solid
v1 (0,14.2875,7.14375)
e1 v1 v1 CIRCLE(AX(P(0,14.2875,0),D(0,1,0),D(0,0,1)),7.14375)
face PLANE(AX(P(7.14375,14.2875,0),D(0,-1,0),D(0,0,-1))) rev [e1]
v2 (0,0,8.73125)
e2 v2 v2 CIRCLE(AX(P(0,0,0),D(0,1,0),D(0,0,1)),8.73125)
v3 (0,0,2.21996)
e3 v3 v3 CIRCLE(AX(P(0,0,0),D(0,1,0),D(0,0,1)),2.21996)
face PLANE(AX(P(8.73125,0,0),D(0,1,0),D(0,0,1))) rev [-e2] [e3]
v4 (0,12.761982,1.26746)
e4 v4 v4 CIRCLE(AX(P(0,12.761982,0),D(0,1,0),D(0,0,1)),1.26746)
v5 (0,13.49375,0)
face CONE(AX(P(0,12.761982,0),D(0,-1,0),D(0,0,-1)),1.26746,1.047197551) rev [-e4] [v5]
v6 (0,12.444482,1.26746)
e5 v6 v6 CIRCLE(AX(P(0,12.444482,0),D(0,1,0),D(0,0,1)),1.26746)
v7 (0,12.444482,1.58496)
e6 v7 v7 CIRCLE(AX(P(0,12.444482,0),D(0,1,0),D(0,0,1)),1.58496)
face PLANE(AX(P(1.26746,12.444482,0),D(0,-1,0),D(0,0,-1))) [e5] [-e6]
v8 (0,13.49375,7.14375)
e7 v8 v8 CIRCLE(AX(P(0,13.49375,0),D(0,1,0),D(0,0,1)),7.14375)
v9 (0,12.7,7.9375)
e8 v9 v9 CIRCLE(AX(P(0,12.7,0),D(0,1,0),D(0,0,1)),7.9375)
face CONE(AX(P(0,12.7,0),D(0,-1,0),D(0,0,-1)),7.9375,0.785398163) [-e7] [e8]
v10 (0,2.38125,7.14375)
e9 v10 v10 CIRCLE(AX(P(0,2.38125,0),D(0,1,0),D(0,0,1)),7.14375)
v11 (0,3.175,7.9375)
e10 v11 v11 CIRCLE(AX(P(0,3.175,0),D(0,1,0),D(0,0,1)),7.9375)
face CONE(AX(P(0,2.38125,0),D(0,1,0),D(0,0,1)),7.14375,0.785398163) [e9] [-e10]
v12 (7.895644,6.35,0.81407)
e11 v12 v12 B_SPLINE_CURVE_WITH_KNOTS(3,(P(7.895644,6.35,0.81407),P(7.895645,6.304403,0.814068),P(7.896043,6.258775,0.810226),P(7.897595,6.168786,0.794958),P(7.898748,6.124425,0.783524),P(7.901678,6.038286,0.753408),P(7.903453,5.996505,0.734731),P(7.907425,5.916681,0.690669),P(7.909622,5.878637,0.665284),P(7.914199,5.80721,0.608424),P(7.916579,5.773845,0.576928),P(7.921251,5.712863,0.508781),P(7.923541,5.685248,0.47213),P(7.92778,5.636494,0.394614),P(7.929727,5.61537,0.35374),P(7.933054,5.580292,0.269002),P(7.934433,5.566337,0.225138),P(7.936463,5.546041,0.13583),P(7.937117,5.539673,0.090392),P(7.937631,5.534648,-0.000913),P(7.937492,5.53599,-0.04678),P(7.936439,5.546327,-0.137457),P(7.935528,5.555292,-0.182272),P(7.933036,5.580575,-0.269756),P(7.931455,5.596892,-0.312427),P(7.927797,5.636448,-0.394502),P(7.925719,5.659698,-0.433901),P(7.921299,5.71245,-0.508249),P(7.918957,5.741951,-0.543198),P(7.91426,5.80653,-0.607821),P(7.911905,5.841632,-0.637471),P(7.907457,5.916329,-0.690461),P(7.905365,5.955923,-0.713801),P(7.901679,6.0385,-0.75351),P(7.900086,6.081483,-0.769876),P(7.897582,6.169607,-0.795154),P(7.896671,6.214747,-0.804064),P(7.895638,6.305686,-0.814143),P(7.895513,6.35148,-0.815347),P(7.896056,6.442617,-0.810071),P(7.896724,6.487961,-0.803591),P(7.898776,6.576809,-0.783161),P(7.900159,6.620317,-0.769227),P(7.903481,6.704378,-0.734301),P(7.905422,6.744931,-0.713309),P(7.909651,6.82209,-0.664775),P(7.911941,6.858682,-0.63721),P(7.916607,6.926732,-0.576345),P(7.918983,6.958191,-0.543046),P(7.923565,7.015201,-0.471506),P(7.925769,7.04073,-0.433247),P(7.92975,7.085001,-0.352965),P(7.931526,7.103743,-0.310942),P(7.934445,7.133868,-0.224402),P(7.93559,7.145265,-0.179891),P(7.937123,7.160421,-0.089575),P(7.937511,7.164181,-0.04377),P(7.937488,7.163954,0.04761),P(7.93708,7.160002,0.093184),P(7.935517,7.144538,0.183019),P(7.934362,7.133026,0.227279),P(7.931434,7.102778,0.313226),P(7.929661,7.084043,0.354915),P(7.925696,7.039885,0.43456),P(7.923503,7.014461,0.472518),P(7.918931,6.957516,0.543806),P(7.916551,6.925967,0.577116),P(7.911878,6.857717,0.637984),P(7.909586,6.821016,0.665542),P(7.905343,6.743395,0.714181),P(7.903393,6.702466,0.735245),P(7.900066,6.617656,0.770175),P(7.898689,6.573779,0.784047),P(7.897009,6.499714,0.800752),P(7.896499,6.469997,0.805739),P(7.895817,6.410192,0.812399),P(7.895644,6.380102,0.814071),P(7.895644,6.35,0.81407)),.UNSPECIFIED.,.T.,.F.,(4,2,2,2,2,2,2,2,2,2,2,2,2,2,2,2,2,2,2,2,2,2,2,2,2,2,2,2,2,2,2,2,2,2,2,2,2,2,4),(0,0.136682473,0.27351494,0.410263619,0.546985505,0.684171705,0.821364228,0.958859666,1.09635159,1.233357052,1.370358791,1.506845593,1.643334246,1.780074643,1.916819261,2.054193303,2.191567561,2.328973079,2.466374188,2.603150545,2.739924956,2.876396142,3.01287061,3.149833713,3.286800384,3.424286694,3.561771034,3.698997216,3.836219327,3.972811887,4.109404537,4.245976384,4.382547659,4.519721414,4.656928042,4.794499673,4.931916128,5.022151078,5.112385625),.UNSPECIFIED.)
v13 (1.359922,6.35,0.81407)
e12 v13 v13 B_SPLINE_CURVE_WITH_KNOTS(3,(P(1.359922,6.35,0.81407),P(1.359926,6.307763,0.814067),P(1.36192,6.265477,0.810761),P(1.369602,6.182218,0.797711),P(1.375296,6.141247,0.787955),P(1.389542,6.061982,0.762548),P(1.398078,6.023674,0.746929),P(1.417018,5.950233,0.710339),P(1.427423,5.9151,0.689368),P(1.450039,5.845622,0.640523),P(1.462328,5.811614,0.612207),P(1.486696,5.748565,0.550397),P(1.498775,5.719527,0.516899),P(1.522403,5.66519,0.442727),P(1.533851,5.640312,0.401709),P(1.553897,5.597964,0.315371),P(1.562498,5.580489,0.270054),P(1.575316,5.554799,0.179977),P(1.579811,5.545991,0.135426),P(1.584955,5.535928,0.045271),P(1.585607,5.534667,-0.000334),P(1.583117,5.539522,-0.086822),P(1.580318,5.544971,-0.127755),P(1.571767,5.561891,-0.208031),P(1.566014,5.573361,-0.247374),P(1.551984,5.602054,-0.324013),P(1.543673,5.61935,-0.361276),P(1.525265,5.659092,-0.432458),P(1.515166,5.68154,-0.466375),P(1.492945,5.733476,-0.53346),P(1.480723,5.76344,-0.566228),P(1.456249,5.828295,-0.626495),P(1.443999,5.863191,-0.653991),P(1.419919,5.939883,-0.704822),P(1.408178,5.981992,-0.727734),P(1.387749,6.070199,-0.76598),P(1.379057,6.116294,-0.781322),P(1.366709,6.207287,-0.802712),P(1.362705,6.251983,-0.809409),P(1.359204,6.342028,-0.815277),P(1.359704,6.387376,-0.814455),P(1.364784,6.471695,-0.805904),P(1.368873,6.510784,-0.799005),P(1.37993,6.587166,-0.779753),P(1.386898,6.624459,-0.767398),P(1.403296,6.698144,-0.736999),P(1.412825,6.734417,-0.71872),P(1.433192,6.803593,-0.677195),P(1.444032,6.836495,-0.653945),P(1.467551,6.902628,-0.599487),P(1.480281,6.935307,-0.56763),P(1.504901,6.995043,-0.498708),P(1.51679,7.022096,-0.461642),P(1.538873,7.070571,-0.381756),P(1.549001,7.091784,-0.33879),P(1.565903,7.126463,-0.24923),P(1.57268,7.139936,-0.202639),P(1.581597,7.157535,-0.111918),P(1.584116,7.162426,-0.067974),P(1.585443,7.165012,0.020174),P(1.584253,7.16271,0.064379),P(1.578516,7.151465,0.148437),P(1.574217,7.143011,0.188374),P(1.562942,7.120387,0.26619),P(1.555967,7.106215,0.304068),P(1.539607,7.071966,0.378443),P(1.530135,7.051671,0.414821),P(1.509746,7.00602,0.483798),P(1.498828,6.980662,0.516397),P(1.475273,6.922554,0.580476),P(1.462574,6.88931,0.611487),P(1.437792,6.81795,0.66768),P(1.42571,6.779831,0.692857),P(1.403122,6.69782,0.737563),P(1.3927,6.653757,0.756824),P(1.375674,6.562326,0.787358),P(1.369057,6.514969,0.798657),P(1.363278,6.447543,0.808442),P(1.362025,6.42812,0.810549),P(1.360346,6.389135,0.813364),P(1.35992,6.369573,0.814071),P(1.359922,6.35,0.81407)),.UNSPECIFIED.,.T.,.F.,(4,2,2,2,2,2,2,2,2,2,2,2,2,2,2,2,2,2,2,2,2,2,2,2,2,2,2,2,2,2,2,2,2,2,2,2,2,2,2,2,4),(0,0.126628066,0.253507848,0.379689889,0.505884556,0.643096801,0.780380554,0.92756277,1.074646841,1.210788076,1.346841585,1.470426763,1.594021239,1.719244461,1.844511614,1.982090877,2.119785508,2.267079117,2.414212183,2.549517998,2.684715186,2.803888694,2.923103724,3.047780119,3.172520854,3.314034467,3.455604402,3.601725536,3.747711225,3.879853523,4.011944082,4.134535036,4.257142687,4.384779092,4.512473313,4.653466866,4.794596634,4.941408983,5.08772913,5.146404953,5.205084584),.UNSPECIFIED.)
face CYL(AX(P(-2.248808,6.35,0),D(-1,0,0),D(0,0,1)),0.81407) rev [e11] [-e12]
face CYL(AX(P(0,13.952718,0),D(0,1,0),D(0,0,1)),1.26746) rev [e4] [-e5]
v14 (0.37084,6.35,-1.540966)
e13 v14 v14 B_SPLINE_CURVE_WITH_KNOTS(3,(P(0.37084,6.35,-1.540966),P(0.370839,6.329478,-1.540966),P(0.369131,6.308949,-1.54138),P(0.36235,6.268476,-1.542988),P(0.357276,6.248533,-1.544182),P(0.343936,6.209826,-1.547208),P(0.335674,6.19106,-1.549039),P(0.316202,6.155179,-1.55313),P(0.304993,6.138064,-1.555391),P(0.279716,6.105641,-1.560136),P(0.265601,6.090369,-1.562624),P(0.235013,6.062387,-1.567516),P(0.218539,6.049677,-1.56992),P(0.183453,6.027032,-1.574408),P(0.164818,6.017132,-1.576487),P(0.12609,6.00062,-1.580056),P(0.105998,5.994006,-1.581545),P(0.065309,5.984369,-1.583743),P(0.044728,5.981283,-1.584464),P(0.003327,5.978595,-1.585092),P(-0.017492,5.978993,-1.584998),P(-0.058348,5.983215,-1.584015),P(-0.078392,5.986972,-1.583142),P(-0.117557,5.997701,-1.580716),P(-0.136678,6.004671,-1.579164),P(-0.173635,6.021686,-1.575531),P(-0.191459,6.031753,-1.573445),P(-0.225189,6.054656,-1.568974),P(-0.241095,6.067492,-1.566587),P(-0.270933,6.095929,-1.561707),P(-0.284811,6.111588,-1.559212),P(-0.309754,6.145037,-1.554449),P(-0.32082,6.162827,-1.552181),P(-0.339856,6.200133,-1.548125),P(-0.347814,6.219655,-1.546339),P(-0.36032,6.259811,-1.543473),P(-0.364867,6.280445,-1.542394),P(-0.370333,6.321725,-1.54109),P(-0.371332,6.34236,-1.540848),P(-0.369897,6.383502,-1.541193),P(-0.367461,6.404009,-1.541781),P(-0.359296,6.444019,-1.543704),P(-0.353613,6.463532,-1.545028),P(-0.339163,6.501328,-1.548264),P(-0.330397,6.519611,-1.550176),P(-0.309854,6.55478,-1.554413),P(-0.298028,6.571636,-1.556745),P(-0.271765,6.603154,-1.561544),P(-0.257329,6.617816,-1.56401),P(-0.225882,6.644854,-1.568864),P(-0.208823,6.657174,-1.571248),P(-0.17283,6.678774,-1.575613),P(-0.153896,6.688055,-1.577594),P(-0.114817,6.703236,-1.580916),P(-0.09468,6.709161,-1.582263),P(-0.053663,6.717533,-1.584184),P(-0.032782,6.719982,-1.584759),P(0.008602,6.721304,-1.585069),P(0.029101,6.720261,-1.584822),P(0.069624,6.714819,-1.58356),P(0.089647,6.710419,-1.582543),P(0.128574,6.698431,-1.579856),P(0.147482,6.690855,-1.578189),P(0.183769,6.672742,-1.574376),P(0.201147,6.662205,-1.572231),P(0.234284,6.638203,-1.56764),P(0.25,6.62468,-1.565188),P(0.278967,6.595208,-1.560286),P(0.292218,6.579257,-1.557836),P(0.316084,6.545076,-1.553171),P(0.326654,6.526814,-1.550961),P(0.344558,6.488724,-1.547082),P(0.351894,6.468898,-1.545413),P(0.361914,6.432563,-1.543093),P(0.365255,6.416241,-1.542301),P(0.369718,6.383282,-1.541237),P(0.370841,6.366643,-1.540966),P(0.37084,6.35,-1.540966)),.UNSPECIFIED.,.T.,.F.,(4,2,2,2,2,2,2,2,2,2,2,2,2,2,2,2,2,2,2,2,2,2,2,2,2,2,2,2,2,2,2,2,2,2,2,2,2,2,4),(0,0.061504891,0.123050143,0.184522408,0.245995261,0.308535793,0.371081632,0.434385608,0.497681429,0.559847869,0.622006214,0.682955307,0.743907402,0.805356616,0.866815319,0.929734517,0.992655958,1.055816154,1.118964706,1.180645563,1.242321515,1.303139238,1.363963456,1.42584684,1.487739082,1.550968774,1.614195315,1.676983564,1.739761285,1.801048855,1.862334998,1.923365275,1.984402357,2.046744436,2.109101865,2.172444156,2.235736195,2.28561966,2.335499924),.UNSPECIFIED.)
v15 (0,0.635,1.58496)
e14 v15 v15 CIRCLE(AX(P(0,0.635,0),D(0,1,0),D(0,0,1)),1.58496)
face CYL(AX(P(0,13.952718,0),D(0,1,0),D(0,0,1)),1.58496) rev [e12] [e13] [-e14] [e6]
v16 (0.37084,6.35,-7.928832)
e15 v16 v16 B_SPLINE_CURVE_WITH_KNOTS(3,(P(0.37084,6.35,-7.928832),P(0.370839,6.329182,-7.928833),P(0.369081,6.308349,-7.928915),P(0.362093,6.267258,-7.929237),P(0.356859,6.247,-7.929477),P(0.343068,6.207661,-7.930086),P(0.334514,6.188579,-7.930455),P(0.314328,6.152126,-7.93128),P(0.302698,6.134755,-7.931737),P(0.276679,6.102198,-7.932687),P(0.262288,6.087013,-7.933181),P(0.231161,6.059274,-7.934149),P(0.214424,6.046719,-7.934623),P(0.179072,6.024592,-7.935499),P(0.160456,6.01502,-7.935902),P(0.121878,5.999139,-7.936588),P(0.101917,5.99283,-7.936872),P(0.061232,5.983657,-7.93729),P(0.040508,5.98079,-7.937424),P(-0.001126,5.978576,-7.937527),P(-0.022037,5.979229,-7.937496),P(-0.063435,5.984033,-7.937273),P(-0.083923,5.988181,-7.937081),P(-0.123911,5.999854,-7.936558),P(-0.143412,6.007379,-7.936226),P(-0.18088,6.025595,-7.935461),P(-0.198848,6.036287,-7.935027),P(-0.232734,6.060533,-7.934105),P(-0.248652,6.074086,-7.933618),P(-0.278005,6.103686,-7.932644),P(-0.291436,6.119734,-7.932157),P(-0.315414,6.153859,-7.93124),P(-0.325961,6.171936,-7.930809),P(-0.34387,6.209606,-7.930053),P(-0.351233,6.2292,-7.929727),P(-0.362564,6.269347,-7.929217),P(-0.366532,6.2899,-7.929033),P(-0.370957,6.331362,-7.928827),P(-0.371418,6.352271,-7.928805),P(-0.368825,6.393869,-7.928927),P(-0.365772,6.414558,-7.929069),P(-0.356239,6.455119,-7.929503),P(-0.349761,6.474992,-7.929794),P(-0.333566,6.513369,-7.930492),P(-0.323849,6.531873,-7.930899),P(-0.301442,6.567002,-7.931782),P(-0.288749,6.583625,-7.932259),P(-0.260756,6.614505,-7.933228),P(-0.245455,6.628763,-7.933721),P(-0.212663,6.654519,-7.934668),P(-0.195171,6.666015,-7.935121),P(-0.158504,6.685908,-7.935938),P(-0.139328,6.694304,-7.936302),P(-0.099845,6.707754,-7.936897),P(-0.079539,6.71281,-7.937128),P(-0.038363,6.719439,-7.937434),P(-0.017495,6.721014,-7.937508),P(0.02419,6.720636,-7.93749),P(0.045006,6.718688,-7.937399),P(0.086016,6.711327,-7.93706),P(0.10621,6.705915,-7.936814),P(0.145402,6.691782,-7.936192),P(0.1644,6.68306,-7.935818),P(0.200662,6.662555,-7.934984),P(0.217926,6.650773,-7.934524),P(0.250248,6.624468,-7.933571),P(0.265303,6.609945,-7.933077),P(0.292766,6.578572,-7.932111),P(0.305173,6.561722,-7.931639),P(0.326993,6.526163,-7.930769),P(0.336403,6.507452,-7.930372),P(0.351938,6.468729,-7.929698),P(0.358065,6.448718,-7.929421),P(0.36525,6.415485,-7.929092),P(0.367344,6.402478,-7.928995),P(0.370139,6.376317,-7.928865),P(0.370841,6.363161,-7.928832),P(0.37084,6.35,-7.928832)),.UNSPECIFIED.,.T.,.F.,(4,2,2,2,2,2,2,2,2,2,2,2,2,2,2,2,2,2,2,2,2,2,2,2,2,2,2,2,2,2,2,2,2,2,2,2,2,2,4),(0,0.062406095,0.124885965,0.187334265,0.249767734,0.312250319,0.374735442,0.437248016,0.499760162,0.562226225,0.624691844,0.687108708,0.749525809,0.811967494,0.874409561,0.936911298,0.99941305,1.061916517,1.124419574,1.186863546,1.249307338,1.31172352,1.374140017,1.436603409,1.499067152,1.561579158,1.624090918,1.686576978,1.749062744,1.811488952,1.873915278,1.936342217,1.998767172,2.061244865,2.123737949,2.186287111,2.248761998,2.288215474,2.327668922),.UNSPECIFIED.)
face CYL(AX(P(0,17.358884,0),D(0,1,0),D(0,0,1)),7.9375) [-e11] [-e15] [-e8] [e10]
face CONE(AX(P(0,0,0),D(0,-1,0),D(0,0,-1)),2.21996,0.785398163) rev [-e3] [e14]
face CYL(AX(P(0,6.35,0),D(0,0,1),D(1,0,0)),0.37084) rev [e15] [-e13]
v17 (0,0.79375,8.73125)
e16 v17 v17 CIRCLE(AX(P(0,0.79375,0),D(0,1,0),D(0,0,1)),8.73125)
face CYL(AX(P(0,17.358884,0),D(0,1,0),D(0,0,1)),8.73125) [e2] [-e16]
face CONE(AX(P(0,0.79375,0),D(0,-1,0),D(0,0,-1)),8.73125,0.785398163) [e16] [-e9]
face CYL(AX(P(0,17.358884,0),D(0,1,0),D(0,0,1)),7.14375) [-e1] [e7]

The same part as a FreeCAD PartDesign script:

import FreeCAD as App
import Part
import Sketcher
from FreeCAD import Vector
Q = App.Units.Quantity

doc = App.newDocument("Part")
body = doc.addObject("PartDesign::Body", "Body")

sketch1 = body.newObject("Sketcher::SketchObject", "Sketch")
sketch1.AttachmentSupport = (doc.getObject("XY_Plane"), [""])
sketch1.MapMode = "FlatFace"
sketch1.addGeometry([
    Part.LineSegment(Vector(7.1, 13.5, 0), Vector(7.1, 14.3, 0)),
    Part.LineSegment(Vector(7.1, 14.3, 0), Vector(0, 14.3, 0)),
    Part.LineSegment(Vector(0, 14.3, 0), Vector(0, 0, 0)),
    Part.LineSegment(Vector(0, 0, 0), Vector(8.7, 0, 0)),
    Part.LineSegment(Vector(8.7, 0, 0), Vector(8.7, 0.8, 0)),
    Part.LineSegment(Vector(8.7, 0.8, 0), Vector(7.1, 2.4, 0)),
    Part.LineSegment(Vector(7.1, 2.4, 0), Vector(7.9, 3.2, 0)),
    Part.LineSegment(Vector(7.9, 3.2, 0), Vector(7.9, 12.7, 0)),
    Part.LineSegment(Vector(7.9, 12.7, 0), Vector(7.1, 13.5, 0)),
], False)
sketch1.addConstraint([
    Sketcher.Constraint("Coincident", 0, 2, 1, 1),
    Sketcher.Constraint("Coincident", 1, 2, 2, 1),
    Sketcher.Constraint("Coincident", 2, 2, 3, 1),
    Sketcher.Constraint("Coincident", 3, 2, 4, 1),
    Sketcher.Constraint("Coincident", 4, 2, 5, 1),
    Sketcher.Constraint("Coincident", 5, 2, 6, 1),
    Sketcher.Constraint("Coincident", 6, 2, 7, 1),
    Sketcher.Constraint("Coincident", 7, 2, 8, 1),
    Sketcher.Constraint("Coincident", 8, 2, 0, 1),
    Sketcher.Constraint("Vertical", 0),
    Sketcher.Constraint("Horizontal", 1),
    Sketcher.Constraint("Vertical", 2),
    Sketcher.Constraint("Horizontal", 3),
    Sketcher.Constraint("Vertical", 4),
    Sketcher.Constraint("Vertical", 7),
    Sketcher.Constraint("Coincident", 2, 2, -1, 1),
    Sketcher.Constraint("Perpendicular", 5, 6),
    Sketcher.Constraint("Perpendicular", 6, 8),
    Sketcher.Constraint("Vertical", 0, 2, 5, 2),
    Sketcher.Constraint("Equal", 0, 4),
    Sketcher.Constraint("Equal", 6, 8),
    Sketcher.Constraint("DistanceY", -1, 1, 7, 2, Q("0.5 in")),
    Sketcher.Constraint("DistanceX", 1, 2, 1, 1, Q("0.28125 in")),
    Sketcher.Constraint("DistanceX", 3, 1, 3, 2, Q("0.34375 in")),
    Sketcher.Constraint("DistanceY", 0, 1, 0, 2, Q("0.03125 in")),
    Sketcher.Constraint("DistanceY", 2, 2, 2, 1, Q("0.5625 in")),
])
revolution = body.newObject("PartDesign::Revolution", "Revolution")
revolution.Profile = sketch1
revolution.ReferenceAxis = (sketch1, ["V_Axis"])
revolution.Angle = 360

sketch2 = body.newObject("Sketcher::SketchObject", "Sketch001")
sketch2.AttachmentSupport = (doc.getObject("XY_Plane"), [""])
sketch2.MapMode = "FlatFace"
sketch2.addGeometry([
    Part.LineSegment(Vector(1.27, 12.76, 0), Vector(0, 13.49, 0)),
    Part.LineSegment(Vector(0, 13.49, 0), Vector(0, 0, 0)),
    Part.LineSegment(Vector(0, 0, 0), Vector(2.22, 0, 0)),
    Part.LineSegment(Vector(2.22, 0, 0), Vector(1.58, 0.64, 0)),
    Part.LineSegment(Vector(1.58, 0.64, 0), Vector(1.58, 12.44, 0)),
    Part.LineSegment(Vector(1.58, 12.44, 0), Vector(1.27, 12.44, 0)),
    Part.LineSegment(Vector(1.27, 12.44, 0), Vector(1.27, 12.76, 0)),
], False)
sketch2.addConstraint([
    Sketcher.Constraint("Coincident", 0, 2, 1, 1),
    Sketcher.Constraint("Coincident", 1, 2, 2, 1),
    Sketcher.Constraint("Coincident", 2, 2, 3, 1),
    Sketcher.Constraint("Coincident", 3, 2, 4, 1),
    Sketcher.Constraint("Coincident", 4, 2, 5, 1),
    Sketcher.Constraint("Coincident", 5, 2, 6, 1),
    Sketcher.Constraint("Coincident", 6, 2, 0, 1),
    Sketcher.Constraint("Vertical", 1),
    Sketcher.Constraint("Horizontal", 2),
    Sketcher.Constraint("Vertical", 4),
    Sketcher.Constraint("Horizontal", 5),
    Sketcher.Constraint("Vertical", 6),
    Sketcher.Constraint("Coincident", 1, 2, -1, 1),
    Sketcher.Constraint("Equal", 5, 6),
    Sketcher.Constraint("Angle", 0, Q("150 deg")),
    Sketcher.Constraint("Angle", 3, Q("135 deg")),
    Sketcher.Constraint("DistanceY", 1, 2, 1, 1, Q("0.53125 in")),
    Sketcher.Constraint("DistanceX", 2, 1, 2, 2, Q("0.0874 in")),
    Sketcher.Constraint("DistanceX", 5, 2, 5, 1, Q("0.0125 in")),
    Sketcher.Constraint("DistanceY", -1, 1, 3, 2, Q("0.025 in")),
])
groove = body.newObject("PartDesign::Groove", "Groove")
groove.Profile = sketch2
groove.ReferenceAxis = (sketch2, ["V_Axis"])
groove.Angle = 360

sketch3 = body.newObject("Sketcher::SketchObject", "Sketch002")
sketch3.AttachmentSupport = (doc.getObject("XY_Plane"), [""])
sketch3.MapMode = "FlatFace"
sketch3.addGeometry([
    Part.LineSegment(Vector(0, 7.2, 0), Vector(0, 6.3, 0)),
    Part.LineSegment(Vector(0, 6.3, 0), Vector(8.7, 6.3, 0)),
    Part.LineSegment(Vector(8.7, 6.3, 0), Vector(8.7, 7.2, 0)),
    Part.LineSegment(Vector(8.7, 7.2, 0), Vector(0, 7.2, 0)),
], False)
sketch3.addGeometry(Part.LineSegment(Vector(0, 6.3, 0), Vector(8.7, 6.3, 0)), True)
sketch3.addConstraint([
    Sketcher.Constraint("Coincident", 0, 2, 1, 1),
    Sketcher.Constraint("Coincident", 1, 2, 2, 1),
    Sketcher.Constraint("Coincident", 2, 2, 3, 1),
    Sketcher.Constraint("Coincident", 3, 2, 0, 1),
    Sketcher.Constraint("Vertical", 0),
    Sketcher.Constraint("Horizontal", 1),
    Sketcher.Constraint("Vertical", 2),
    Sketcher.Constraint("Horizontal", 3),
    Sketcher.Constraint("Horizontal", 4),
    Sketcher.Constraint("Coincident", 4, 1, 0, 2),
    Sketcher.Constraint("PointOnObject", 0, 2, -2),
    Sketcher.Constraint("Vertical", 2, 2, 4, 2),
    Sketcher.Constraint("DistanceX", 1, 1, 1, 2, Q("0.34375 in")),
    Sketcher.Constraint("DistanceY", -1, 1, 0, 2, Q("0.25 in")),
    Sketcher.Constraint("DistanceY", 0, 2, 0, 1, 0.81407),
])
groove2 = body.newObject("PartDesign::Groove", "Groove001")
groove2.Profile = sketch3
groove2.ReferenceAxis = (sketch3, ["Axis0"])
groove2.Angle = 360

sketch4 = body.newObject("Sketcher::SketchObject", "Sketch003")
sketch4.AttachmentSupport = (doc.getObject("YZ_Plane"), [""])
sketch4.MapMode = "FlatFace"
sketch4.addGeometry([
    Part.LineSegment(Vector(6.72, 0, 0), Vector(6.35, 0, 0)),
    Part.LineSegment(Vector(6.35, 0, 0), Vector(6.35, -8.73, 0)),
    Part.LineSegment(Vector(6.35, -8.73, 0), Vector(6.72, -8.73, 0)),
    Part.LineSegment(Vector(6.72, -8.73, 0), Vector(6.72, 0, 0)),
], False)
sketch4.addGeometry(Part.LineSegment(Vector(6.35, 0, 0), Vector(6.35, -8.73, 0)), True)
sketch4.addConstraint([
    Sketcher.Constraint("Coincident", 0, 2, 1, 1),
    Sketcher.Constraint("Coincident", 1, 2, 2, 1),
    Sketcher.Constraint("Coincident", 2, 2, 3, 1),
    Sketcher.Constraint("Coincident", 3, 2, 0, 1),
    Sketcher.Constraint("Horizontal", 0),
    Sketcher.Constraint("Vertical", 1),
    Sketcher.Constraint("Horizontal", 2),
    Sketcher.Constraint("Vertical", 3),
    Sketcher.Constraint("Vertical", 4),
    Sketcher.Constraint("Coincident", 4, 1, 0, 2),
    Sketcher.Constraint("PointOnObject", 0, 2, -1),
    Sketcher.Constraint("Horizontal", 2, 2, 4, 2),
    Sketcher.Constraint("DistanceY", 1, 2, 1, 1, Q("0.34375 in")),
    Sketcher.Constraint("DistanceX", -1, 1, 0, 2, Q("0.25 in")),
    Sketcher.Constraint("DistanceX", 0, 2, 0, 1, Q("0.0146 in")),
])
groove3 = body.newObject("PartDesign::Groove", "Groove002")
groove3.Profile = sketch4
groove3.ReferenceAxis = (sketch4, ["Axis0"])
groove3.Angle = 360

doc.recompute()
